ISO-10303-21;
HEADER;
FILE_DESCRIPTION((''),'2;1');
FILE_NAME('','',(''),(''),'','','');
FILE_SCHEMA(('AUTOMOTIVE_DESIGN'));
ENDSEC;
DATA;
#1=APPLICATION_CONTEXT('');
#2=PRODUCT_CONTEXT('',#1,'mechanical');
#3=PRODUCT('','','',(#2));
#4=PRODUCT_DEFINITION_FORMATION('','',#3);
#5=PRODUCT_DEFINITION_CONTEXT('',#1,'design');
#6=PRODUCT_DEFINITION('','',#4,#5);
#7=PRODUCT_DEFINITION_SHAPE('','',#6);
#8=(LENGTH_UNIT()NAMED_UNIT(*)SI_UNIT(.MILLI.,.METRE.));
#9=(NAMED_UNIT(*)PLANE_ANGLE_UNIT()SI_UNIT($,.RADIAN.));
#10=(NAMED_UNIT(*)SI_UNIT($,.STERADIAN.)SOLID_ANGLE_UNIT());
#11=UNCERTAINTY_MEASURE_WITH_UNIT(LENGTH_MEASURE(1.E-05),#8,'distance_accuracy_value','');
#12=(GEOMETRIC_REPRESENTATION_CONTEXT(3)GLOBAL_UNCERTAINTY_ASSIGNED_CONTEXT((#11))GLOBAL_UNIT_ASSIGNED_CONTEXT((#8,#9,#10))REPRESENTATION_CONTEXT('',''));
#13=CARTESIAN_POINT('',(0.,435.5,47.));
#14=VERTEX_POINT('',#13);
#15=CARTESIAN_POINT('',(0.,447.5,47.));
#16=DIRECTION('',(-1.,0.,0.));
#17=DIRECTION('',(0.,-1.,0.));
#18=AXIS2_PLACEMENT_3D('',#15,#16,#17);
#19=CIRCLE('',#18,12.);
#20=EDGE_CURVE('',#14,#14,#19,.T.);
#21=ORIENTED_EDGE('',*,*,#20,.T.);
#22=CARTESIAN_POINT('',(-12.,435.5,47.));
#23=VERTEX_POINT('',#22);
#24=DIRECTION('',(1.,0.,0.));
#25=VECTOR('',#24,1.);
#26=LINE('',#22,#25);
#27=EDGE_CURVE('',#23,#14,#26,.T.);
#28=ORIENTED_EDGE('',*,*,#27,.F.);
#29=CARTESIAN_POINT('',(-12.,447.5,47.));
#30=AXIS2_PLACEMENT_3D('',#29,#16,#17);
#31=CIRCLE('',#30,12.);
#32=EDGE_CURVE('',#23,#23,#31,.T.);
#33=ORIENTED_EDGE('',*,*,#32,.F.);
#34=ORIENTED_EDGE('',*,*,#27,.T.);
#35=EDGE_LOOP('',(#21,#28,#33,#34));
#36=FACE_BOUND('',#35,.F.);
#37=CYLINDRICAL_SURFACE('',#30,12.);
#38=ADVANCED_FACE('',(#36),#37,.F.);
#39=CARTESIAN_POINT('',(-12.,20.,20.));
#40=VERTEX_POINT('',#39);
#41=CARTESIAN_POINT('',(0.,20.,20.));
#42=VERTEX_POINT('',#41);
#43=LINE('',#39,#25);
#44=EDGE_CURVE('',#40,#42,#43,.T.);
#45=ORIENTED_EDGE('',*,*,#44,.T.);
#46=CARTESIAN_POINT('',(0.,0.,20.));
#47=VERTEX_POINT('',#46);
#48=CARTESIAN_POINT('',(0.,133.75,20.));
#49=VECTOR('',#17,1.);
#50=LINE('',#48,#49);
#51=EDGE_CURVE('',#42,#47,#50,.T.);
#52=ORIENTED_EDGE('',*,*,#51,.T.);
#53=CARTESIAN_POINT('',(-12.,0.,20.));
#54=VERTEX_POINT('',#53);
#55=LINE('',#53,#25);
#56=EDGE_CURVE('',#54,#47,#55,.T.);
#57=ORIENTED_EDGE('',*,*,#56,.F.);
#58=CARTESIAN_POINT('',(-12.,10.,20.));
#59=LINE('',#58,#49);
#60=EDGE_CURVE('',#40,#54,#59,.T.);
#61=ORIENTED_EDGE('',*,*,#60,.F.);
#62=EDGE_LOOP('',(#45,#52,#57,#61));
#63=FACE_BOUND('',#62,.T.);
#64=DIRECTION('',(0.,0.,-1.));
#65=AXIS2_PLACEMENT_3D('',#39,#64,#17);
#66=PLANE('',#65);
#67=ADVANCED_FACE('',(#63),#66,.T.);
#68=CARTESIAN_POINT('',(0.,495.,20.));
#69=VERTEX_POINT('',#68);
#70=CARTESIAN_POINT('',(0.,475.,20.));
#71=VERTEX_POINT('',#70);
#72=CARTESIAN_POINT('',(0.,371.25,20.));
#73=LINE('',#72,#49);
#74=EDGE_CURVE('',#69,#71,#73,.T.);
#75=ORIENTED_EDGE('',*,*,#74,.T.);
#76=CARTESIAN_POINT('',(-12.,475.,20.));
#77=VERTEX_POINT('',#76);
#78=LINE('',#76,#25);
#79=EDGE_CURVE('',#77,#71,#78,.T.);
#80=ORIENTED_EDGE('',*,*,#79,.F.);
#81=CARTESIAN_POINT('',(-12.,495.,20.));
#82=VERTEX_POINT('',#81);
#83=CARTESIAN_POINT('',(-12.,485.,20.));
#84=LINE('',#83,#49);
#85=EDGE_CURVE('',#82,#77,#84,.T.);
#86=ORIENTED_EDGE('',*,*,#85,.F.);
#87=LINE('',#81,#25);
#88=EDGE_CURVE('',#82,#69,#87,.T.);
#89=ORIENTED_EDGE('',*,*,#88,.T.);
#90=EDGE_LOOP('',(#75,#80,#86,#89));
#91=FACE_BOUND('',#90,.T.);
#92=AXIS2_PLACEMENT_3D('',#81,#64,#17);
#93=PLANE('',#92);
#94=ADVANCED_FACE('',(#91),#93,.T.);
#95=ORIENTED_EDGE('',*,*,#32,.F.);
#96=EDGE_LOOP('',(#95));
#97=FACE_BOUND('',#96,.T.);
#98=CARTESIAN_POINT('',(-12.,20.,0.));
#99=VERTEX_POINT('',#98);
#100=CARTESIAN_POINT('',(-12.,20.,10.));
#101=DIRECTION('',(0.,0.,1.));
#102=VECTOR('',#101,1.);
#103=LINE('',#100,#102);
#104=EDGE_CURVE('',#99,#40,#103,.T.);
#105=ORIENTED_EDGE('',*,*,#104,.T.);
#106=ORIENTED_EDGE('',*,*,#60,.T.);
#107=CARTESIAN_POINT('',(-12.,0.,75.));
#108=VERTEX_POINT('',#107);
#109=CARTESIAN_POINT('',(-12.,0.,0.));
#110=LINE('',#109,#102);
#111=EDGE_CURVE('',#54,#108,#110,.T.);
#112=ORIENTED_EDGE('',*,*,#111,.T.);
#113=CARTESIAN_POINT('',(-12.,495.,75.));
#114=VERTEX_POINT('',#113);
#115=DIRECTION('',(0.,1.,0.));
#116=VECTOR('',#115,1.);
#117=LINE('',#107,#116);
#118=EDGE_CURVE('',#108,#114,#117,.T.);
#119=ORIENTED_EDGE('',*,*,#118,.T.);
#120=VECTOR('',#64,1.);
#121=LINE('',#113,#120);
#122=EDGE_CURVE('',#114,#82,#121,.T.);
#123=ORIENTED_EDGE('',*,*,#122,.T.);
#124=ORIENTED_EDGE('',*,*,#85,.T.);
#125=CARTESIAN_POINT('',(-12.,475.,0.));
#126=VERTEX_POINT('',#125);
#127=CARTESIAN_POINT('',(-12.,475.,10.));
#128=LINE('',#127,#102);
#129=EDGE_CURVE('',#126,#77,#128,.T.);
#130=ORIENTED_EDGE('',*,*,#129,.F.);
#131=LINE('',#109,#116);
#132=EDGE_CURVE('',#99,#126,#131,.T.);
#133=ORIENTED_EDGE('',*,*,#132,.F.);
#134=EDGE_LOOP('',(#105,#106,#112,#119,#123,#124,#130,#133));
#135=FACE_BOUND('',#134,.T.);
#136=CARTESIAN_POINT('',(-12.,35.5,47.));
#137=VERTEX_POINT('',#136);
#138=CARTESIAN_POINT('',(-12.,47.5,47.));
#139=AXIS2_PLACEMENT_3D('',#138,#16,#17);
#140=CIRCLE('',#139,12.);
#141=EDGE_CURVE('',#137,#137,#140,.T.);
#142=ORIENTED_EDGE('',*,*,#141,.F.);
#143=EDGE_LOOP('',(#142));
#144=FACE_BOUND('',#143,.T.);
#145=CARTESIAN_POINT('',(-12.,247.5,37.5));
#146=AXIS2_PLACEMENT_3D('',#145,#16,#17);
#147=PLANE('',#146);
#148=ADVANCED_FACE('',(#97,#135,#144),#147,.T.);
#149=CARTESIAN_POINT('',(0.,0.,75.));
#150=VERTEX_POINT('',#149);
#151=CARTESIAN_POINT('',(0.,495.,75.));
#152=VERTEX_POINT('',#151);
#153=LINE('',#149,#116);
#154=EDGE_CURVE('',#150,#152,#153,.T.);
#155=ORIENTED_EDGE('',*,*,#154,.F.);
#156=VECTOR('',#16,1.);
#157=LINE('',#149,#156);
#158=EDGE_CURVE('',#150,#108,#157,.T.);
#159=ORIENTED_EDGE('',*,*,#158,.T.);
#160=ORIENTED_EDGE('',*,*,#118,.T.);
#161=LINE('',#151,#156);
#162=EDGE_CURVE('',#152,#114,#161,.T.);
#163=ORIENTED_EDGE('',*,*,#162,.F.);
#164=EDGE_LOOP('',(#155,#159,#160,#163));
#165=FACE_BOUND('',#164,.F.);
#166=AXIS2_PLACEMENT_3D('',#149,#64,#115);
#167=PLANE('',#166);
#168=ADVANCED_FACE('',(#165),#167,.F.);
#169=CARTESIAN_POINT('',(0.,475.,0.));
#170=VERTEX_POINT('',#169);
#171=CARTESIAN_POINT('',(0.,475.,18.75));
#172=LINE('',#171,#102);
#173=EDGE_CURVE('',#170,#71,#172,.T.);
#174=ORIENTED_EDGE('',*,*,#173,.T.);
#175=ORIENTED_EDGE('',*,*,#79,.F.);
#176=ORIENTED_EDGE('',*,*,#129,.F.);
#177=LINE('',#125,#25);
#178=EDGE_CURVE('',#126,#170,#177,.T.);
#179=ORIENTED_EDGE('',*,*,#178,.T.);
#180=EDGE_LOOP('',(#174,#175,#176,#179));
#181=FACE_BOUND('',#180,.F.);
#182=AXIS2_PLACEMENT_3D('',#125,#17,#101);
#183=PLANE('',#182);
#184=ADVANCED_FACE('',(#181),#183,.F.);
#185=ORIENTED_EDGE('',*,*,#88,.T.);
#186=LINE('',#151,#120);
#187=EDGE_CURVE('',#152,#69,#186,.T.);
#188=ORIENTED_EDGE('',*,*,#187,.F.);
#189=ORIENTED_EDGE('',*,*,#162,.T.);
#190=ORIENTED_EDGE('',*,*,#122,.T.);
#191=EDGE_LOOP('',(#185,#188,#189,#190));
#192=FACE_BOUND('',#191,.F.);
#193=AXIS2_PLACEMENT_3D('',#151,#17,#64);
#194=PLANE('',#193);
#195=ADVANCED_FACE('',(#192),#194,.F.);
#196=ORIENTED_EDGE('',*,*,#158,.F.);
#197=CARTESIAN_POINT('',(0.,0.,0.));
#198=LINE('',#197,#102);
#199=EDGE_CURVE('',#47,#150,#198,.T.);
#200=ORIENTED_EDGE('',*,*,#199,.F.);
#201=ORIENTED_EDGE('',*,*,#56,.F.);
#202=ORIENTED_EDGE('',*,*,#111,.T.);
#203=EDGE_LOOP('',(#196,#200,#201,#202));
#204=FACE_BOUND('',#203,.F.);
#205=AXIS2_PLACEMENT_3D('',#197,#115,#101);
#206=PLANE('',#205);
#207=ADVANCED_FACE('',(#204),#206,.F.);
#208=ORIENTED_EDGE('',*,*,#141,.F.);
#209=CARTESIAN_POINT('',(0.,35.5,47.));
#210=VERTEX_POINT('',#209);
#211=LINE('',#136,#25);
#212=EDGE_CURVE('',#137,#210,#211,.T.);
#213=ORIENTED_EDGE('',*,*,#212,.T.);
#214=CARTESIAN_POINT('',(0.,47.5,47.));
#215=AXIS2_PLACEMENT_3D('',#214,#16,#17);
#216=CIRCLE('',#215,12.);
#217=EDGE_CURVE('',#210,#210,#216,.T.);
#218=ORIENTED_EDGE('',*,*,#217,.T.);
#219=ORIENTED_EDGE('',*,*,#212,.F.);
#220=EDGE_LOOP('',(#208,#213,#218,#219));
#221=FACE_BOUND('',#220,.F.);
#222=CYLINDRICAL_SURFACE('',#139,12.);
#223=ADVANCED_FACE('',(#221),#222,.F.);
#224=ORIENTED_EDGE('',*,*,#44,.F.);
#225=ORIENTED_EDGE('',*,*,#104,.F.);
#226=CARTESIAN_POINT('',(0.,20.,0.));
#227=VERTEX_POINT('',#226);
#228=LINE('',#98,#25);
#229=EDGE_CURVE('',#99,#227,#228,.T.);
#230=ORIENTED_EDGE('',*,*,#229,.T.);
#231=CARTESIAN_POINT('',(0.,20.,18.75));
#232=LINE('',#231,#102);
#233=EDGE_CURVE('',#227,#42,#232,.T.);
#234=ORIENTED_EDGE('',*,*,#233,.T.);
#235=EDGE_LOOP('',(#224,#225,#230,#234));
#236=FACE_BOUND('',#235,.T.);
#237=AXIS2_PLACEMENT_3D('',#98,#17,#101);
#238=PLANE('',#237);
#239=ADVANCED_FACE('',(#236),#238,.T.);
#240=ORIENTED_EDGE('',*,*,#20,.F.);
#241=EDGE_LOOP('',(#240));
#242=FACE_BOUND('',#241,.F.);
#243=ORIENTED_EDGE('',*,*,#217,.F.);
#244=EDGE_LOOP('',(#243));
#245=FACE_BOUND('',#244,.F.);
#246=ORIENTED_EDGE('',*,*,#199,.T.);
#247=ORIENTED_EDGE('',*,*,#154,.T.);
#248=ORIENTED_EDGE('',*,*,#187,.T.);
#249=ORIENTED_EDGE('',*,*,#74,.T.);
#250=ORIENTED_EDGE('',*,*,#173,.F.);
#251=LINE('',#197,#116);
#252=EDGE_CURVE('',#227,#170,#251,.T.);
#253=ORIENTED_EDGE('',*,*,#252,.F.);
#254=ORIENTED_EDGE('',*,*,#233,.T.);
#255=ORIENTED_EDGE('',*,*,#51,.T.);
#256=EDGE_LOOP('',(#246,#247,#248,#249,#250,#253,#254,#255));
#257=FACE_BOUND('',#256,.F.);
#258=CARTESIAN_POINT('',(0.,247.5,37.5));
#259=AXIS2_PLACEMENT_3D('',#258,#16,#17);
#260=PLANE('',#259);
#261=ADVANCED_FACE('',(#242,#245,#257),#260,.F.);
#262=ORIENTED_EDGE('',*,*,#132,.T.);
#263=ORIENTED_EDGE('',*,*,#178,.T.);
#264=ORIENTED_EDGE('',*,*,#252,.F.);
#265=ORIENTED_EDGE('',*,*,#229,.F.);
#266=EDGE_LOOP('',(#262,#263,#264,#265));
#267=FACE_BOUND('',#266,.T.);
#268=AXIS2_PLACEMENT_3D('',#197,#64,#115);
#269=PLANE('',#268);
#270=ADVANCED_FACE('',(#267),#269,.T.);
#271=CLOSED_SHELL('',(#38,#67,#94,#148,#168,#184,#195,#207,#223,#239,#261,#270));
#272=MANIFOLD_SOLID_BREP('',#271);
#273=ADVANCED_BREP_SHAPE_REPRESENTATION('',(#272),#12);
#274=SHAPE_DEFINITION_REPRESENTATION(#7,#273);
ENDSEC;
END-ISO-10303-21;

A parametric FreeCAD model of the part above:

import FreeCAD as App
import Part
import Sketcher
Q = App.Units.Quantity

doc = App.newDocument("Part")
body = doc.addObject("PartDesign::Body", "Body")

# Sketch on YZ plane
sketch1 = doc.addObject("Sketcher::SketchObject", "Sketch")
body.addObject(sketch1)
sketch1.AttachmentSupport = (doc.YZ_Plane, [""])
sketch1.MapMode = "FlatFace"
sketch1.addGeometry(Part.LineSegment(App.Vector(0, 75, 0), App.Vector(0, 0, 0)), False)
sketch1.addGeometry(Part.LineSegment(App.Vector(0, 0, 0), App.Vector(495, 0, 0)), False)
sketch1.addGeometry(Part.LineSegment(App.Vector(495, 0, 0), App.Vector(495, 75, 0)), False)
sketch1.addGeometry(Part.LineSegment(App.Vector(495, 75, 0), App.Vector(0, 75, 0)), False)
sketch1.addConstraint(Sketcher.Constraint("Coincident", 0, 2, 1, 1))
sketch1.addConstraint(Sketcher.Constraint("Coincident", 1, 2, 2, 1))
sketch1.addConstraint(Sketcher.Constraint("Coincident", 2, 2, 3, 1))
sketch1.addConstraint(Sketcher.Constraint("Coincident", 3, 2, 0, 1))
sketch1.addConstraint(Sketcher.Constraint("Vertical", 0))
sketch1.addConstraint(Sketcher.Constraint("Horizontal", 1))
sketch1.addConstraint(Sketcher.Constraint("Vertical", 2))
sketch1.addConstraint(Sketcher.Constraint("Horizontal", 3))
sketch1.addConstraint(Sketcher.Constraint("Coincident", 0, 2, -1, 1))
sketch1.addConstraint(Sketcher.Constraint("DistanceX", 1, 1, 1, 2, Q("495 mm")))
sketch1.addConstraint(Sketcher.Constraint("DistanceY", 0, 2, 0, 1, Q("75 mm")))
pad1 = doc.addObject("PartDesign::Pad", "Pad")
body.addObject(pad1)
pad1.Profile = sketch1
pad1.Length = 12
pad1.Reversed = True

# Sketch on YZ plane
sketch2 = doc.addObject("Sketcher::SketchObject", "Sketch001")
body.addObject(sketch2)
sketch2.AttachmentSupport = (doc.YZ_Plane, [""])
sketch2.MapMode = "FlatFace"
sketch2.AttachmentOffset = App.Placement(App.Vector(0, 0, -12), App.Rotation())
sketch2.addGeometry(Part.Circle(App.Vector(448, 47, 0), App.Vector(0, 0, 1), 12), False)
sketch2.addGeometry(Part.Circle(App.Vector(48, 47, 0), App.Vector(0, 0, 1), 12), False)
sketch2.addGeometry(Part.LineSegment(App.Vector(20, 20, 0), App.Vector(20, 0, 0)), False)
sketch2.addGeometry(Part.LineSegment(App.Vector(20, 0, 0), App.Vector(0, 0, 0)), False)
sketch2.addGeometry(Part.LineSegment(App.Vector(0, 0, 0), App.Vector(0, 20, 0)), False)
sketch2.addGeometry(Part.LineSegment(App.Vector(0, 20, 0), App.Vector(20, 20, 0)), False)
sketch2.addGeometry(Part.LineSegment(App.Vector(495, 20, 0), App.Vector(495, 0, 0)), False)
sketch2.addGeometry(Part.LineSegment(App.Vector(495, 0, 0), App.Vector(475, 0, 0)), False)
sketch2.addGeometry(Part.LineSegment(App.Vector(475, 0, 0), App.Vector(475, 20, 0)), False)
sketch2.addGeometry(Part.LineSegment(App.Vector(475, 20, 0), App.Vector(495, 20, 0)), False)
sketch2.addConstraint(Sketcher.Constraint("Coincident", 2, 2, 3, 1))
sketch2.addConstraint(Sketcher.Constraint("Coincident", 3, 2, 4, 1))
sketch2.addConstraint(Sketcher.Constraint("Coincident", 4, 2, 5, 1))
sketch2.addConstraint(Sketcher.Constraint("Coincident", 5, 2, 2, 1))
sketch2.addConstraint(Sketcher.Constraint("Coincident", 6, 2, 7, 1))
sketch2.addConstraint(Sketcher.Constraint("Coincident", 7, 2, 8, 1))
sketch2.addConstraint(Sketcher.Constraint("Coincident", 8, 2, 9, 1))
sketch2.addConstraint(Sketcher.Constraint("Coincident", 9, 2, 6, 1))
sketch2.addConstraint(Sketcher.Constraint("Vertical", 2))
sketch2.addConstraint(Sketcher.Constraint("Horizontal", 3))
sketch2.addConstraint(Sketcher.Constraint("Vertical", 4))
sketch2.addConstraint(Sketcher.Constraint("Horizontal", 5))
sketch2.addConstraint(Sketcher.Constraint("Vertical", 6))
sketch2.addConstraint(Sketcher.Constraint("Horizontal", 7))
sketch2.addConstraint(Sketcher.Constraint("Vertical", 8))
sketch2.addConstraint(Sketcher.Constraint("Horizontal", 9))
sketch2.addConstraint(Sketcher.Constraint("Coincident", 3, 2, -1, 1))
sketch2.addConstraint(Sketcher.Constraint("Equal", 0, 1))
sketch2.addConstraint(Sketcher.Constraint("PointOnObject", 6, 2, -1))
sketch2.addConstraint(Sketcher.Constraint("Horizontal", 0, 3, 1, 3))
sketch2.addConstraint(Sketcher.Constraint("Horizontal", 5, 2, 8, 2))
sketch2.addConstraint(Sketcher.Constraint("Equal", 5, 7))
sketch2.addConstraint(Sketcher.Constraint("Equal", 9, 2))
sketch2.addConstraint(Sketcher.Constraint("Diameter", 0, Q("24 mm")))
sketch2.addConstraint(Sketcher.Constraint("DistanceX", 3, 2, 3, 1, Q("20 mm")))
sketch2.addConstraint(Sketcher.Constraint("DistanceY", -1, 1, 0, 3, Q("47 mm")))
sketch2.addConstraint(Sketcher.Constraint("DistanceX", -1, 1, 6, 2, Q("495 mm")))
sketch2.addConstraint(Sketcher.Constraint("DistanceX", 1, 3, 0, 3, Q("400 mm")))
sketch2.addConstraint(Sketcher.Constraint("DistanceX", -1, 1, 0, 3, Q("447.5 mm")))
pocket1 = doc.addObject("PartDesign::Pocket", "Pocket")
body.addObject(pocket1)
pocket1.Profile = sketch2
pocket1.Length = 20
pocket1.Reversed = True

doc.recompute()
